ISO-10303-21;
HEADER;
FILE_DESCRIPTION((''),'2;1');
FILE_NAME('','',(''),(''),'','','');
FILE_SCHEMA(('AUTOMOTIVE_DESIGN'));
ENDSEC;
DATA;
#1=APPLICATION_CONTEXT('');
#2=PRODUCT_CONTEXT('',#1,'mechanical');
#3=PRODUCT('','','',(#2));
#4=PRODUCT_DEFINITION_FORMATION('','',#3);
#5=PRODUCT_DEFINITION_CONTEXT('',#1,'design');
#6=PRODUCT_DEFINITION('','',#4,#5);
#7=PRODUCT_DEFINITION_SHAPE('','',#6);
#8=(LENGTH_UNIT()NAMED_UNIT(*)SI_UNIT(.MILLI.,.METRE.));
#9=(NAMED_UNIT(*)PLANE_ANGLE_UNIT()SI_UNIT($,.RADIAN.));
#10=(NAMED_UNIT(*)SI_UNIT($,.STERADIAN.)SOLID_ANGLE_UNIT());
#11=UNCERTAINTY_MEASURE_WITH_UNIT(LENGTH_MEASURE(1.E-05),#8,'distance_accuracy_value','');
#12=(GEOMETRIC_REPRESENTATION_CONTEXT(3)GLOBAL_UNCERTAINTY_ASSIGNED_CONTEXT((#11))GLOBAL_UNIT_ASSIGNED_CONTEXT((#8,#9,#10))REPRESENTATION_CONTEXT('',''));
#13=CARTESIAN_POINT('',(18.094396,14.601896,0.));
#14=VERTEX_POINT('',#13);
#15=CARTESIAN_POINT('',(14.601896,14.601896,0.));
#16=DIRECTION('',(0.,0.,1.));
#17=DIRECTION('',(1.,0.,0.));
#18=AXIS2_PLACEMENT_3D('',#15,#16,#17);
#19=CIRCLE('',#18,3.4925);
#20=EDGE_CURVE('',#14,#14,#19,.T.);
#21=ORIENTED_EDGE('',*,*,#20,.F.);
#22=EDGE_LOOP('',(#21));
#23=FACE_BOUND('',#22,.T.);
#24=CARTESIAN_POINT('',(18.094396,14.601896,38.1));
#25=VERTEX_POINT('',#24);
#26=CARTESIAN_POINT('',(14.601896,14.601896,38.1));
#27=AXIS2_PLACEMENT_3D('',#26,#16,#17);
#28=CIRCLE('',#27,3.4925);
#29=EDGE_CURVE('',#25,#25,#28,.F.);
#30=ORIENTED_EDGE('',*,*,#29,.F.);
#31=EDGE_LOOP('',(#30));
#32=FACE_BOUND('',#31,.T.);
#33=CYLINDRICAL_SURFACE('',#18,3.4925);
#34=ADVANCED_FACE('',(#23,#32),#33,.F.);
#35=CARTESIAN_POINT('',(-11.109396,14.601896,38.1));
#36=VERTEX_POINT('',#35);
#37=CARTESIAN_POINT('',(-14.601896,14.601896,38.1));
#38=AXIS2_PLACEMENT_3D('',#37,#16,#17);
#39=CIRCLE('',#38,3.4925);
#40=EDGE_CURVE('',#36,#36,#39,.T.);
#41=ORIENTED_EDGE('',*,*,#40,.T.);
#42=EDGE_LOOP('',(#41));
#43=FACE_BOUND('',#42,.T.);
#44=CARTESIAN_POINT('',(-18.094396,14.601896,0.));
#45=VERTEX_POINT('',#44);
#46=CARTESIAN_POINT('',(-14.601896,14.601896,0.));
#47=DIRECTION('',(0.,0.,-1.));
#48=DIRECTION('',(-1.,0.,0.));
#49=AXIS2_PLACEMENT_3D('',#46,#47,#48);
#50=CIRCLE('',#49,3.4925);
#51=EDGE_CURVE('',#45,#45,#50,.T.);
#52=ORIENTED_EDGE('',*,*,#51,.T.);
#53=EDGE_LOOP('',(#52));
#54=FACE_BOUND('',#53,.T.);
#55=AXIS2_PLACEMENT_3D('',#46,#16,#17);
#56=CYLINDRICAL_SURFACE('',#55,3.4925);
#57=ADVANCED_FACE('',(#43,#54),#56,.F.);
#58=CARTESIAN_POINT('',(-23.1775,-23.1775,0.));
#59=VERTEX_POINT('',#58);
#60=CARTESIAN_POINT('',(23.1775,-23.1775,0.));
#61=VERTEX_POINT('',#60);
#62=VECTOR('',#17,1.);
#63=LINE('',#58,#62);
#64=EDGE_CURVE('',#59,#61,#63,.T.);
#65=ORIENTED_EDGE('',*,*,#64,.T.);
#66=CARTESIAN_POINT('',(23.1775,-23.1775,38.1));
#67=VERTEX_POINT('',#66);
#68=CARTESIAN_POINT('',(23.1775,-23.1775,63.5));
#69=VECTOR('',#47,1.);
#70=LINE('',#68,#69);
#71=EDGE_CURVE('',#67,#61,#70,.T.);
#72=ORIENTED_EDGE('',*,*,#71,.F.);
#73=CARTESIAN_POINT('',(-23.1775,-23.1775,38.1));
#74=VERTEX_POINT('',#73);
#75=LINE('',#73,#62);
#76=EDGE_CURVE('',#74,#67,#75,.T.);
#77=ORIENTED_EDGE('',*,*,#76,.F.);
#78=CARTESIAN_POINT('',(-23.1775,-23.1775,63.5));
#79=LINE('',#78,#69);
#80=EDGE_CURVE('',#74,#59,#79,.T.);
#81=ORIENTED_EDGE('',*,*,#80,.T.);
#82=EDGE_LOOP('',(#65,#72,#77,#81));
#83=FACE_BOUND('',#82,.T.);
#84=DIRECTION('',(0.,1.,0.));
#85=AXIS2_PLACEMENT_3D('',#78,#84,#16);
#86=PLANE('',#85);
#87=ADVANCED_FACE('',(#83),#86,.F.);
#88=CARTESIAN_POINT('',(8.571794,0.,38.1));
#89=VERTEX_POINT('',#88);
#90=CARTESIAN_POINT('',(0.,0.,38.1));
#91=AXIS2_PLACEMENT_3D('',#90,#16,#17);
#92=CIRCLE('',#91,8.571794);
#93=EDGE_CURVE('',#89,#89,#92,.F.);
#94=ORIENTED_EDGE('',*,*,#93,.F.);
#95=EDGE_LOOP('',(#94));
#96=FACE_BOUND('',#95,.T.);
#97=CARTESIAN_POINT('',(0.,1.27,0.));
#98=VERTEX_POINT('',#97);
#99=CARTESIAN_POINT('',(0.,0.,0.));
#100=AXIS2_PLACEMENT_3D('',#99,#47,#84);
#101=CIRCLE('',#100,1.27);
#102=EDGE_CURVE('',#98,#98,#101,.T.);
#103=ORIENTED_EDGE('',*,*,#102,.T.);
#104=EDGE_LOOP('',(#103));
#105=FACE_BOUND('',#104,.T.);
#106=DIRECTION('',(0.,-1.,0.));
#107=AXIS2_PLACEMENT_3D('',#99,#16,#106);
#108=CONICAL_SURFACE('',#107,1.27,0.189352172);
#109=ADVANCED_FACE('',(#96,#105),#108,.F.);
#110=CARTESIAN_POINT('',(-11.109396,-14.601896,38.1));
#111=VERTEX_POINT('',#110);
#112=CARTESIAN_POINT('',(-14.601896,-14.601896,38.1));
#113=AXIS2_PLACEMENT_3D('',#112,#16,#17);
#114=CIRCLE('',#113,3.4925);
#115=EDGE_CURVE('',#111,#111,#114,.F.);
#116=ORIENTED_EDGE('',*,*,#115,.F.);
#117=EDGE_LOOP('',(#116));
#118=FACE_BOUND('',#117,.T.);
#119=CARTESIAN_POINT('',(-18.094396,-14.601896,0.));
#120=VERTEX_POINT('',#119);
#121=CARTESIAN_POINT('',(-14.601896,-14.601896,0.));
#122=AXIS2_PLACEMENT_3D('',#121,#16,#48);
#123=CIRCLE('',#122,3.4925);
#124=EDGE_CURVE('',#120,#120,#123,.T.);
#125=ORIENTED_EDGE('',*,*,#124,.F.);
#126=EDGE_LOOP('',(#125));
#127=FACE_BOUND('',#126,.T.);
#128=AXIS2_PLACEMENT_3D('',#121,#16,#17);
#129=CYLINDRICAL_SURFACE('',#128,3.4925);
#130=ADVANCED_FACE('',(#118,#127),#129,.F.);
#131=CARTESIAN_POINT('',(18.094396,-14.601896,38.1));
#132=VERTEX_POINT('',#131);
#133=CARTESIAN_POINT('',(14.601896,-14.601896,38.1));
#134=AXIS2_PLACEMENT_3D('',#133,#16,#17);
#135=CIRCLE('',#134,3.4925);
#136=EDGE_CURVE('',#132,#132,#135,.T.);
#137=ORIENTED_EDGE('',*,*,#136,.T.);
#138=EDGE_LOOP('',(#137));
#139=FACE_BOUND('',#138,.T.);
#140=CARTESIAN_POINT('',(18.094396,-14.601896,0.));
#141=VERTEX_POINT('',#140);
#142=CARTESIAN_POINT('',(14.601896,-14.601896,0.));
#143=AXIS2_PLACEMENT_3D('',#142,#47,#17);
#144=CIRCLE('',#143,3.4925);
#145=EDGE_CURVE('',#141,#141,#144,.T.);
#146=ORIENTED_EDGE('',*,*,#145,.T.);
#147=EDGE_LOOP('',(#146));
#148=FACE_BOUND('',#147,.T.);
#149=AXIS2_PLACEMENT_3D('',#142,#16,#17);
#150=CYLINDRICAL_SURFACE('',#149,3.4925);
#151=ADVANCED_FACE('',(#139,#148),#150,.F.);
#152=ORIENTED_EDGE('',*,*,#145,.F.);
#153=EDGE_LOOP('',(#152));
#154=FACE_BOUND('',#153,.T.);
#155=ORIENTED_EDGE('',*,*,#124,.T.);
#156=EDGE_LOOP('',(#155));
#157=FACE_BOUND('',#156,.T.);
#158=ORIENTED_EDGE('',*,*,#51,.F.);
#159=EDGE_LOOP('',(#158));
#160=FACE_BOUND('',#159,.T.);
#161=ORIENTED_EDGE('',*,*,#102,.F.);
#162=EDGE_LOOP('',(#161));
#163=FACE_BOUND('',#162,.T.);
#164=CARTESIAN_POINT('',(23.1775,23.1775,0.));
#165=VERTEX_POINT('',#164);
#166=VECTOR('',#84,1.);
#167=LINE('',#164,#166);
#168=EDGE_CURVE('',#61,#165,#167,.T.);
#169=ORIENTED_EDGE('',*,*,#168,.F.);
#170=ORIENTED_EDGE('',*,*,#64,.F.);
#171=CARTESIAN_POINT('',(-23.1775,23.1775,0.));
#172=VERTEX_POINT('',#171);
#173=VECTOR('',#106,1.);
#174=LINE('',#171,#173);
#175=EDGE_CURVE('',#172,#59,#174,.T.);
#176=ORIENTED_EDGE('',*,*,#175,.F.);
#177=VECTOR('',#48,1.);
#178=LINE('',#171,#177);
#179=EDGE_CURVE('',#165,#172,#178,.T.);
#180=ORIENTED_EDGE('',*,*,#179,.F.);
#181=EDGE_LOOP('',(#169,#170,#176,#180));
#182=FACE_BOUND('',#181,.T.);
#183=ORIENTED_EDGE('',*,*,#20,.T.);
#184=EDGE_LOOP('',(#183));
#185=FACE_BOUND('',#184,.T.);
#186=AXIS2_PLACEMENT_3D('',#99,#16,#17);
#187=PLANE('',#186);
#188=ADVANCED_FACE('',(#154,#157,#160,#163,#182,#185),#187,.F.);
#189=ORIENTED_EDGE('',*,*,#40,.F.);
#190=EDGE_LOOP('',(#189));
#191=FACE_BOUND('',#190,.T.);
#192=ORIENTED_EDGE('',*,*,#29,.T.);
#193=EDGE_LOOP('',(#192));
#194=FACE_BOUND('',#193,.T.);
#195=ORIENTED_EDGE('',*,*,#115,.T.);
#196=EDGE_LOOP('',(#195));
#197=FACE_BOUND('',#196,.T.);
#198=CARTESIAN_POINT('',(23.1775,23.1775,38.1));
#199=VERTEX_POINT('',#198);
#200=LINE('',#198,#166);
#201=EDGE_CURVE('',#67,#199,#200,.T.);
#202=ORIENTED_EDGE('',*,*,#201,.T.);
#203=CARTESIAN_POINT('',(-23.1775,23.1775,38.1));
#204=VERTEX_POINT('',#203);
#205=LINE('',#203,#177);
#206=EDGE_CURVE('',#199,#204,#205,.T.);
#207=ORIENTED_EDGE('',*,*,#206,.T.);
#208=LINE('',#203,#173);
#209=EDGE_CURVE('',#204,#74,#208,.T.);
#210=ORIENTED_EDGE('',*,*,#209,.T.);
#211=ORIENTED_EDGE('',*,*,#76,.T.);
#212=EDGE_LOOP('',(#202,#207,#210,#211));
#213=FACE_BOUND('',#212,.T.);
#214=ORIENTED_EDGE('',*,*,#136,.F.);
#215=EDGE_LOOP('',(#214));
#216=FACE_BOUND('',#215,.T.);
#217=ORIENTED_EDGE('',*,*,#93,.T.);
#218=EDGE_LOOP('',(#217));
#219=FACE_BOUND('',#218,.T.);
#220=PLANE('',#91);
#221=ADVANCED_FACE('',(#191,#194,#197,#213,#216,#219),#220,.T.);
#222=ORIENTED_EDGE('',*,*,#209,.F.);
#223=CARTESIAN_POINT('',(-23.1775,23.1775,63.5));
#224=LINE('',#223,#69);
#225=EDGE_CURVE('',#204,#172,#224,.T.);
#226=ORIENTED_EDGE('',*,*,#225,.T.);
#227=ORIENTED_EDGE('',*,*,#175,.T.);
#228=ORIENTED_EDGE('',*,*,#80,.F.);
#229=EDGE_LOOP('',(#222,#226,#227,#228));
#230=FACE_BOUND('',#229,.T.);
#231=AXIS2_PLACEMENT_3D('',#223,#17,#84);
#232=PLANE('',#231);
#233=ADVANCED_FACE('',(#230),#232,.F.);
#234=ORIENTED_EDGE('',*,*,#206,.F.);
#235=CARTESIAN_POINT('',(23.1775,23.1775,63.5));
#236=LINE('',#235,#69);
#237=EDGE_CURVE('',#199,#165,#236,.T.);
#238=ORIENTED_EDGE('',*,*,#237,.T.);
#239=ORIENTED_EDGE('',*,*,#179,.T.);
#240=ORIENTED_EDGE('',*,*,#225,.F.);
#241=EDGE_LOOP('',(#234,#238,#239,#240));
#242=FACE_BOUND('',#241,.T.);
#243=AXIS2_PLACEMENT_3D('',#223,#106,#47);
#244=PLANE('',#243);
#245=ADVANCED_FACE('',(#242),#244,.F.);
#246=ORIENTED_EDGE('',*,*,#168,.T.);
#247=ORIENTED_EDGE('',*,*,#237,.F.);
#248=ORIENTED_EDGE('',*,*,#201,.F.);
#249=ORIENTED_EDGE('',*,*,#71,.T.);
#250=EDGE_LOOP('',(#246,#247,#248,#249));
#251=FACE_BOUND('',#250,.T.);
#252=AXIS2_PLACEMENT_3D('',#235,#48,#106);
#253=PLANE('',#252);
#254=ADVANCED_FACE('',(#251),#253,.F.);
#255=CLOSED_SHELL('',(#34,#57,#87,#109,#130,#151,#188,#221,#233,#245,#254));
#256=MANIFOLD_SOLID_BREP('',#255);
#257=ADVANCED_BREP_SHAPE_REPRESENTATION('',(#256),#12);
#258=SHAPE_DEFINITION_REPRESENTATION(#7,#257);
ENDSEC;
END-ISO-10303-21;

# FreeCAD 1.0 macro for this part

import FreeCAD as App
import Part
import Sketcher
from FreeCAD import Vector
Q = App.Units.Quantity

doc = App.newDocument("Part")
body = doc.addObject("PartDesign::Body", "Body")

# Sketch on XY plane
sketch1 = doc.addObject("Sketcher::SketchObject", "Sketch")
body.addObject(sketch1)
sketch1.AttachmentSupport = (doc.XY_Plane, [""])
sketch1.MapMode = "FlatFace"
sketch1.addGeometry([
    Part.LineSegment(Vector(-23, 23, 0), Vector(-23, -23, 0)),
    Part.LineSegment(Vector(-23, -23, 0), Vector(23, -23, 0)),
    Part.LineSegment(Vector(23, -23, 0), Vector(23, 23, 0)),
    Part.LineSegment(Vector(23, 23, 0), Vector(-23, 23, 0)),
], False)
sketch1.addConstraint([
    Sketcher.Constraint("Coincident", 0, 2, 1, 1),
    Sketcher.Constraint("Coincident", 1, 2, 2, 1),
    Sketcher.Constraint("Coincident", 2, 2, 3, 1),
    Sketcher.Constraint("Coincident", 3, 2, 0, 1),
    Sketcher.Constraint("Vertical", 0),
    Sketcher.Constraint("Horizontal", 1),
    Sketcher.Constraint("Vertical", 2),
    Sketcher.Constraint("Horizontal", 3),
    Sketcher.Constraint("Symmetric", 0, 2, 2, 2, -1, 1),
    Sketcher.Constraint("Equal", 3, 0),
    Sketcher.Constraint("DistanceX", 1, 1, 1, 2, Q("1.825 in")),
])
pad1 = doc.addObject("PartDesign::Pad", "Pad")
body.addObject(pad1)
pad1.Profile = sketch1
pad1.Length = Q("2.5 in")

# Sketch on XY plane
sketch2 = doc.addObject("Sketcher::SketchObject", "Sketch001")
body.addObject(sketch2)
sketch2.AttachmentSupport = (doc.XY_Plane, [""])
sketch2.MapMode = "FlatFace"
sketch2.AttachmentOffset = App.Placement(Vector(0, 0, 2.5 * 25.4), App.Rotation())
sketch2.addGeometry(Part.Circle(Vector(0, 0, 0), Vector(0, 0, 1), 1.3), False)
sketch2.addConstraint([
    Sketcher.Constraint("Coincident", 0, 3, -1, 1),
    Sketcher.Constraint("Diameter", 0, Q("0.1 in")),
])
pocket1 = doc.addObject("PartDesign::Pocket", "Pocket")
body.addObject(pocket1)
pocket1.Profile = sketch2
pocket1.Type = "ThroughAll"

# Sketch on XY plane
sketch3 = doc.addObject("Sketcher::SketchObject", "Sketch002")
body.addObject(sketch3)
sketch3.AttachmentSupport = (doc.XY_Plane, [""])
sketch3.MapMode = "FlatFace"
sketch3.AttachmentOffset = App.Placement(Vector(0, 0, 2.5 * 25.4), App.Rotation())
sketch3.addGeometry(Part.Circle(Vector(14.6, 14.6, 0), Vector(0, 0, 1), 3.5), False)
sketch3.addConstraint([
    Sketcher.Constraint("Diameter", 0, Q("0.275 in")),
    Sketcher.Constraint("DistanceX", -1, 1, 0, 3, Q("14.601896 mm")),
    Sketcher.Constraint("DistanceY", -1, 1, 0, 3, Q("14.601896 mm")),
])
pocket2 = doc.addObject("PartDesign::Pocket", "Pocket001")
body.addObject(pocket2)
pocket2.Profile = sketch3
pocket2.Type = "ThroughAll"
doc.recompute()

mirrored = doc.addObject("PartDesign::Mirrored", "Mirrored")
body.addObject(mirrored)
mirrored.Originals = [pocket2]
mirrored.MirrorPlane = (doc.XZ_Plane, [""])
body.Tip = mirrored
doc.recompute()

mirrored2 = doc.addObject("PartDesign::Mirrored", "Mirrored001")
body.addObject(mirrored2)
mirrored2.Originals = [pocket2]
mirrored2.MirrorPlane = (doc.YZ_Plane, [""])
body.Tip = mirrored2

# Sketch on XY plane
sketch4 = doc.addObject("Sketcher::SketchObject", "Sketch003")
body.addObject(sketch4)
sketch4.AttachmentSupport = (doc.XY_Plane, [""])
sketch4.MapMode = "FlatFace"
sketch4.AttachmentOffset = App.Placement(Vector(0, 0, 2.5 * 25.4), App.Rotation())
sketch4.addGeometry(Part.Circle(Vector(-14.6, -14.6, 0), Vector(0, 0, 1), 3.5), False)
sketch4.addConstraint([
    Sketcher.Constraint("Diameter", 0, Q("0.275 in")),
    Sketcher.Constraint("DistanceX", 0, 3, -1, 1, Q("14.601896 mm")),
    Sketcher.Constraint("DistanceY", 0, 3, -1, 1, Q("14.601896 mm")),
])
pocket3 = doc.addObject("PartDesign::Pocket", "Pocket002")
body.addObject(pocket3)
pocket3.Profile = sketch4
pocket3.Type = "ThroughAll"

# Sketch on YZ plane
sketch5 = doc.addObject("Sketcher::SketchObject", "Sketch004")
body.addObject(sketch5)
sketch5.AttachmentSupport = (doc.YZ_Plane, [""])
sketch5.MapMode = "FlatFace"
sketch5.addGeometry([
    Part.LineSegment(Vector(9.7, 44.1, 0), Vector(9.7, 63.5, 0)),  # 0
    Part.LineSegment(Vector(9.7, 63.5, 0), Vector(0, 63.5, 0)),  # 1
    Part.LineSegment(Vector(0, 63.5, 0), Vector(0, 0, 0)),  # 2
    Part.LineSegment(Vector(0, 0, 0), Vector(1.3, 0, 0)),  # 3
    Part.LineSegment(Vector(1.3, 0, 0), Vector(9.7, 44.1, 0)),  # 4
], False)
sketch5.addConstraint([
    Sketcher.Constraint("Coincident", 0, 2, 1, 1),
    Sketcher.Constraint("Coincident", 1, 2, 2, 1),
    Sketcher.Constraint("Coincident", 2, 2, 3, 1),
    Sketcher.Constraint("Coincident", 3, 2, 4, 1),
    Sketcher.Constraint("Coincident", 4, 2, 0, 1),
    Sketcher.Constraint("Vertical", 0),
    Sketcher.Constraint("Horizontal", 1),
    Sketcher.Constraint("Vertical", 2),
    Sketcher.Constraint("Horizontal", 3),
    Sketcher.Constraint("Coincident", 2, 2, -1, 1),
    Sketcher.Constraint("DistanceY", 2, 2, 2, 1, Q("2.5 in")),
    Sketcher.Constraint("DistanceX", 3, 1, 3, 2, Q("0.05 in")),
    Sketcher.Constraint("DistanceY", 0, 1, 0, 2, Q("19.442059 mm")),
    Sketcher.Constraint("DistanceX", 1, 2, 1, 1, Q("9.713622 mm")),
])
groove = doc.addObject("PartDesign::Groove", "Groove")
body.addObject(groove)
groove.Profile = sketch5
groove.ReferenceAxis = (sketch5, ["V_Axis"])
groove.Angle = 360

# Sketch on XY plane
sketch6 = doc.addObject("Sketcher::SketchObject", "Sketch005")
body.addObject(sketch6)
sketch6.AttachmentSupport = (doc.XY_Plane, [""])
sketch6.MapMode = "FlatFace"
sketch6.AttachmentOffset = App.Placement(Vector(0, 0, 2.5 * 25.4), App.Rotation())
sketch6.addGeometry([
    Part.LineSegment(Vector(-25, 25, 0), Vector(-25, -26, 0)),
    Part.LineSegment(Vector(-25, -26, 0), Vector(26, -26, 0)),
    Part.LineSegment(Vector(26, -26, 0), Vector(26, 25, 0)),
    Part.LineSegment(Vector(26, 25, 0), Vector(-25, 25, 0)),
], False)
sketch6.addConstraint([
    Sketcher.Constraint("Coincident", 0, 2, 1, 1),
    Sketcher.Constraint("Coincident", 1, 2, 2, 1),
    Sketcher.Constraint("Coincident", 2, 2, 3, 1),
    Sketcher.Constraint("Coincident", 3, 2, 0, 1),
    Sketcher.Constraint("Vertical", 0),
    Sketcher.Constraint("Horizontal", 1),
    Sketcher.Constraint("Vertical", 2),
    Sketcher.Constraint("Horizontal", 3),
    Sketcher.Constraint("DistanceX", 1, 1, 1, 2, Q("50.639916 mm")),
    Sketcher.Constraint("DistanceY", 0, 2, 0, 1, Q("51.332428 mm")),
    Sketcher.Constraint("DistanceX", -1, 1, 1, 2, Q("25.601291 mm")),
    Sketcher.Constraint("DistanceY", -1, 1, 2, 2, Q("25.384881 mm")),
])
pocket4 = doc.addObject("PartDesign::Pocket", "Pocket003")
body.addObject(pocket4)
pocket4.Profile = sketch6
pocket4.Length = Q("1 in")

doc.recompute()
